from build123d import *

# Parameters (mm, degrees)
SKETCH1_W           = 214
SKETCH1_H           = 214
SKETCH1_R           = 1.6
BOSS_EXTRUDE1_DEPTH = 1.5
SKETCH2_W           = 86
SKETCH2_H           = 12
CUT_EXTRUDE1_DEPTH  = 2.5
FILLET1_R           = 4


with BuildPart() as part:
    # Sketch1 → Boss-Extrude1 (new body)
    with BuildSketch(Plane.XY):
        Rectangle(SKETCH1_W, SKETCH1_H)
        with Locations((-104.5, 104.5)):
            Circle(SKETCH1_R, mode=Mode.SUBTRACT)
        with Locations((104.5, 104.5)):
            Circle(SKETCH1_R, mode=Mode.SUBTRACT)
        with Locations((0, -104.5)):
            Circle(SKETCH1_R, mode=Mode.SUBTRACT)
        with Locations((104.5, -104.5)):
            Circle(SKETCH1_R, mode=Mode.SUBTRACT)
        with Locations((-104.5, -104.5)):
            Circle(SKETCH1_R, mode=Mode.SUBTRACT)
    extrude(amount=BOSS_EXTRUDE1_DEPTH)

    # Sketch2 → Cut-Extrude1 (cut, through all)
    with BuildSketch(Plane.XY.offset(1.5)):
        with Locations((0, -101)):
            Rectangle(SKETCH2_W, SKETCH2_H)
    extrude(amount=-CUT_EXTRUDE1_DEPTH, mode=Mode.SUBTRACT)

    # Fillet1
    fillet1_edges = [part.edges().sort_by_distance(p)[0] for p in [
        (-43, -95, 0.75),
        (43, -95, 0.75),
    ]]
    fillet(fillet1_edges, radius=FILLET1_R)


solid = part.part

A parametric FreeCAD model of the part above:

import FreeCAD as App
import Part
import Sketcher

V = App.Vector
Q = App.Units.Quantity


def edges_at(feature, points):
    """Names of the edges that pass closest to the given points."""
    edges = feature.Shape.Edges
    near = lambda p: min(range(len(edges)), key=lambda i: edges[i].distToShape(Part.Vertex(*p))[0])
    return sorted({f"Edge{near(p) + 1}" for p in points})

doc = App.newDocument("Part")
body = doc.addObject("PartDesign::Body", "Body")

# Sketch on XY plane
sketch1 = doc.addObject("Sketcher::SketchObject", "Sketch")
body.addObject(sketch1)
sketch1.AttachmentSupport = (doc.XY_Plane, [""])
sketch1.MapMode = "FlatFace"
sketch1.addGeometry([
    Part.LineSegment(V(-107, 107, 0), V(-107, -107, 0)),  # 0
    Part.LineSegment(V(-107, -107, 0), V(107, -107, 0)),  # 1
    Part.LineSegment(V(107, -107, 0), V(107, 107, 0)),  # 2
    Part.LineSegment(V(107, 107, 0), V(-107, 107, 0)),  # 3
    Part.Circle(V(-104.5, -104.5, 0), V(0, 0, 1), 1.6),  # 4
    Part.Circle(V(0, -104.5, 0), V(0, 0, 1), 1.6),  # 5
    Part.Circle(V(104.5, -104.5, 0), V(0, 0, 1), 1.6),  # 6
    Part.Circle(V(-104.5, 104.5, 0), V(0, 0, 1), 1.6),  # 7
    Part.Circle(V(104.5, 104.5, 0), V(0, 0, 1), 1.6),  # 8
], False)
sketch1.addConstraint([
    Sketcher.Constraint("Coincident", 0, 2, 1, 1),
    Sketcher.Constraint("Coincident", 1, 2, 2, 1),
    Sketcher.Constraint("Coincident", 2, 2, 3, 1),
    Sketcher.Constraint("Coincident", 3, 2, 0, 1),
    Sketcher.Constraint("Vertical", 0),
    Sketcher.Constraint("Horizontal", 1),
    Sketcher.Constraint("Vertical", 2),
    Sketcher.Constraint("Horizontal", 3),
    Sketcher.Constraint("Equal", 4, 5),
    Sketcher.Constraint("Equal", 5, 6),
    Sketcher.Constraint("Equal", 6, 7),
    Sketcher.Constraint("Equal", 7, 8),
    Sketcher.Constraint("Symmetric", 6, 3, 7, 3, -1, 1),
    Sketcher.Constraint("Symmetric", 4, 3, 8, 3, -1, 1),
    Sketcher.Constraint("Symmetric", 0, 2, 2, 2, -1, 1),
    Sketcher.Constraint("Symmetric", 4, 3, 6, 3, -2),
    Sketcher.Constraint("PointOnObject", 5, 3, -2),
    Sketcher.Constraint("Horizontal", 4, 3, 5, 3),
    Sketcher.Constraint("Equal", 3, 0),
    Sketcher.Constraint("Diameter", 4, Q("3.2 mm")),
    Sketcher.Constraint("DistanceX", 1, 1, 1, 2, Q("214 mm")),
    Sketcher.Constraint("DistanceX", 4, 3, 6, 3, Q("209 mm")),
    Sketcher.Constraint("DistanceY", 4, 3, 7, 3, Q("209 mm")),
])
pad1 = doc.addObject("PartDesign::Pad", "Pad")
body.addObject(pad1)
pad1.Profile = sketch1
pad1.Length = 1.5

# Sketch on XY plane
sketch2 = doc.addObject("Sketcher::SketchObject", "Sketch001")
body.addObject(sketch2)
sketch2.AttachmentSupport = (doc.XY_Plane, [""])
sketch2.MapMode = "FlatFace"
sketch2.AttachmentOffset = App.Placement(V(0, 0, 1.5), App.Rotation())
sketch2.addGeometry([
    Part.LineSegment(V(-43, -95, 0), V(-43, -107, 0)),
    Part.LineSegment(V(-43, -107, 0), V(43, -107, 0)),
    Part.LineSegment(V(43, -107, 0), V(43, -95, 0)),
    Part.LineSegment(V(43, -95, 0), V(-43, -95, 0)),
], False)
sketch2.addConstraint([
    Sketcher.Constraint("Coincident", 0, 2, 1, 1),
    Sketcher.Constraint("Coincident", 1, 2, 2, 1),
    Sketcher.Constraint("Coincident", 2, 2, 3, 1),
    Sketcher.Constraint("Coincident", 3, 2, 0, 1),
    Sketcher.Constraint("Vertical", 0),
    Sketcher.Constraint("Horizontal", 1),
    Sketcher.Constraint("Vertical", 2),
    Sketcher.Constraint("Horizontal", 3),
    Sketcher.Constraint("DistanceX", 1, 1, 1, 2, Q("86 mm")),
    Sketcher.Constraint("DistanceY", 0, 2, 0, 1, Q("12 mm")),
    Sketcher.Constraint("DistanceX", 0, 2, -1, 1, Q("43 mm")),
    Sketcher.Constraint("DistanceY", 0, 2, -1, 1, Q("107 mm")),
])
pocket1 = doc.addObject("PartDesign::Pocket", "Pocket")
body.addObject(pocket1)
pocket1.Profile = sketch2
pocket1.Type = "ThroughAll"
doc.recompute()

fillet = doc.addObject("PartDesign::Fillet", "Fillet")
body.addObject(fillet)
fillet.Base = (pocket1, edges_at(pocket1, [(-43, -95, 0.75), (43, -95, 0.75)]))
fillet.Radius = 4

doc.recompute()
